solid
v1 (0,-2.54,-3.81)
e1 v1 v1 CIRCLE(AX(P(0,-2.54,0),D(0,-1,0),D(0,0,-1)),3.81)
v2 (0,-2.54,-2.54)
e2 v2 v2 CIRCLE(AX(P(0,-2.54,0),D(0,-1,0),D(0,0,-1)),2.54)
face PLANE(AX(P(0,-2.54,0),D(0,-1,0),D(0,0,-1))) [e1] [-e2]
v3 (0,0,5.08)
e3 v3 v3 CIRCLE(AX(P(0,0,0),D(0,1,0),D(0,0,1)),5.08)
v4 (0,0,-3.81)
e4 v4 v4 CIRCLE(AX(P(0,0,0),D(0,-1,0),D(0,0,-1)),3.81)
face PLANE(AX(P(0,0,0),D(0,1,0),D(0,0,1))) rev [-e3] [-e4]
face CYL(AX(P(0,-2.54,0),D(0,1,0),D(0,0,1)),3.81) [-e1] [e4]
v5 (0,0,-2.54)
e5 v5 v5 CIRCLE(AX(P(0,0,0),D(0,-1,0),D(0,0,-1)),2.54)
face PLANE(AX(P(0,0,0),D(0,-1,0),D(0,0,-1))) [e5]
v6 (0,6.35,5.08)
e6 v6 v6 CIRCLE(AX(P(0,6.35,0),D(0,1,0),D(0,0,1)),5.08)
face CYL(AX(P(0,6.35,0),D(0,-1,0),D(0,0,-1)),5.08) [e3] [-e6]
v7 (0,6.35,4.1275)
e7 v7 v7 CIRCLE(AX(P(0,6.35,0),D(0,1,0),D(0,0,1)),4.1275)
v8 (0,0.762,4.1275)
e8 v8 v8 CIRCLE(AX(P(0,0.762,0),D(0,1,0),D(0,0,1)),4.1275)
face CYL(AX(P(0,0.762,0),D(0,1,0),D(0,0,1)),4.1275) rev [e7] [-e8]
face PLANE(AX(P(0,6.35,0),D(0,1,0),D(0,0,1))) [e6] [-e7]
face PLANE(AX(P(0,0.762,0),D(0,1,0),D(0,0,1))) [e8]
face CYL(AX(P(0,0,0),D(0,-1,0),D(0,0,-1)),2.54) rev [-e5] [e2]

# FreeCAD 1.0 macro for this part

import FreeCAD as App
import Part
import Sketcher

V = App.Vector
Q = App.Units.Quantity

doc = App.newDocument("Part")
body = doc.addObject("PartDesign::Body", "Body")

# Sketch on XZ plane
sketch1 = doc.addObject("Sketcher::SketchObject", "Sketch")
body.addObject(sketch1)
sketch1.AttachmentSupport = (doc.XZ_Plane, [""])
sketch1.MapMode = "FlatFace"
sketch1.addGeometry(Part.Circle(V(0, 0, 0), V(0, 0, 1), 5.08), False)
sketch1.addConstraint(Sketcher.Constraint("Coincident", 0, 3, -1, 1))
sketch1.addConstraint(Sketcher.Constraint("Diameter", 0, Q("0.4 in")))
pad1 = doc.addObject("PartDesign::Pad", "Pad")
body.addObject(pad1)
pad1.Profile = sketch1
pad1.Length = Q("0.25 in")
pad1.Reversed = True

# Sketch on XZ plane
sketch2 = doc.addObject("Sketcher::SketchObject", "Sketch001")
body.addObject(sketch2)
sketch2.AttachmentSupport = (doc.XZ_Plane, [""])
sketch2.MapMode = "FlatFace"
sketch2.AttachmentOffset = App.Placement(V(0, 0, -0.25 * 25.4), App.Rotation())
sketch2.addGeometry(Part.Circle(V(0, 0, 0), V(0, 0, 1), 4.1275), False)
sketch2.addConstraint(Sketcher.Constraint("Coincident", 0, 3, -1, 1))
sketch2.addConstraint(Sketcher.Constraint("Diameter", 0, Q("0.325 in")))
pocket1 = doc.addObject("PartDesign::Pocket", "Pocket")
body.addObject(pocket1)
pocket1.Profile = sketch2
pocket1.Length = Q("0.22 in")
pocket1.Reversed = True

# Sketch on XZ plane
sketch3 = doc.addObject("Sketcher::SketchObject", "Sketch002")
body.addObject(sketch3)
sketch3.AttachmentSupport = (doc.XZ_Plane, [""])
sketch3.MapMode = "FlatFace"
sketch3.addGeometry(Part.Circle(V(0, 0, 0), V(0, 0, 1), 3.81), False)
sketch3.addConstraint(Sketcher.Constraint("Coincident", 0, 3, -1, 1))
sketch3.addConstraint(Sketcher.Constraint("Diameter", 0, Q("0.3 in")))
pad2 = doc.addObject("PartDesign::Pad", "Pad001")
body.addObject(pad2)
pad2.Profile = sketch3
pad2.Length = Q("0.1 in")

# Sketch on XZ plane
sketch4 = doc.addObject("Sketcher::SketchObject", "Sketch003")
body.addObject(sketch4)
sketch4.AttachmentSupport = (doc.XZ_Plane, [""])
sketch4.MapMode = "FlatFace"
sketch4.AttachmentOffset = App.Placement(V(0, 0, 0.1 * 25.4), App.Rotation())
sketch4.addGeometry(Part.Circle(V(0, 0, 0), V(0, 0, 1), 2.54), False)
sketch4.addConstraint(Sketcher.Constraint("Coincident", 0, 3, -1, 1))
sketch4.addConstraint(Sketcher.Constraint("Diameter", 0, Q("0.2 in")))
pocket2 = doc.addObject("PartDesign::Pocket", "Pocket001")
body.addObject(pocket2)
pocket2.Profile = sketch4
pocket2.Length = Q("0.1 in")

doc.recompute()
